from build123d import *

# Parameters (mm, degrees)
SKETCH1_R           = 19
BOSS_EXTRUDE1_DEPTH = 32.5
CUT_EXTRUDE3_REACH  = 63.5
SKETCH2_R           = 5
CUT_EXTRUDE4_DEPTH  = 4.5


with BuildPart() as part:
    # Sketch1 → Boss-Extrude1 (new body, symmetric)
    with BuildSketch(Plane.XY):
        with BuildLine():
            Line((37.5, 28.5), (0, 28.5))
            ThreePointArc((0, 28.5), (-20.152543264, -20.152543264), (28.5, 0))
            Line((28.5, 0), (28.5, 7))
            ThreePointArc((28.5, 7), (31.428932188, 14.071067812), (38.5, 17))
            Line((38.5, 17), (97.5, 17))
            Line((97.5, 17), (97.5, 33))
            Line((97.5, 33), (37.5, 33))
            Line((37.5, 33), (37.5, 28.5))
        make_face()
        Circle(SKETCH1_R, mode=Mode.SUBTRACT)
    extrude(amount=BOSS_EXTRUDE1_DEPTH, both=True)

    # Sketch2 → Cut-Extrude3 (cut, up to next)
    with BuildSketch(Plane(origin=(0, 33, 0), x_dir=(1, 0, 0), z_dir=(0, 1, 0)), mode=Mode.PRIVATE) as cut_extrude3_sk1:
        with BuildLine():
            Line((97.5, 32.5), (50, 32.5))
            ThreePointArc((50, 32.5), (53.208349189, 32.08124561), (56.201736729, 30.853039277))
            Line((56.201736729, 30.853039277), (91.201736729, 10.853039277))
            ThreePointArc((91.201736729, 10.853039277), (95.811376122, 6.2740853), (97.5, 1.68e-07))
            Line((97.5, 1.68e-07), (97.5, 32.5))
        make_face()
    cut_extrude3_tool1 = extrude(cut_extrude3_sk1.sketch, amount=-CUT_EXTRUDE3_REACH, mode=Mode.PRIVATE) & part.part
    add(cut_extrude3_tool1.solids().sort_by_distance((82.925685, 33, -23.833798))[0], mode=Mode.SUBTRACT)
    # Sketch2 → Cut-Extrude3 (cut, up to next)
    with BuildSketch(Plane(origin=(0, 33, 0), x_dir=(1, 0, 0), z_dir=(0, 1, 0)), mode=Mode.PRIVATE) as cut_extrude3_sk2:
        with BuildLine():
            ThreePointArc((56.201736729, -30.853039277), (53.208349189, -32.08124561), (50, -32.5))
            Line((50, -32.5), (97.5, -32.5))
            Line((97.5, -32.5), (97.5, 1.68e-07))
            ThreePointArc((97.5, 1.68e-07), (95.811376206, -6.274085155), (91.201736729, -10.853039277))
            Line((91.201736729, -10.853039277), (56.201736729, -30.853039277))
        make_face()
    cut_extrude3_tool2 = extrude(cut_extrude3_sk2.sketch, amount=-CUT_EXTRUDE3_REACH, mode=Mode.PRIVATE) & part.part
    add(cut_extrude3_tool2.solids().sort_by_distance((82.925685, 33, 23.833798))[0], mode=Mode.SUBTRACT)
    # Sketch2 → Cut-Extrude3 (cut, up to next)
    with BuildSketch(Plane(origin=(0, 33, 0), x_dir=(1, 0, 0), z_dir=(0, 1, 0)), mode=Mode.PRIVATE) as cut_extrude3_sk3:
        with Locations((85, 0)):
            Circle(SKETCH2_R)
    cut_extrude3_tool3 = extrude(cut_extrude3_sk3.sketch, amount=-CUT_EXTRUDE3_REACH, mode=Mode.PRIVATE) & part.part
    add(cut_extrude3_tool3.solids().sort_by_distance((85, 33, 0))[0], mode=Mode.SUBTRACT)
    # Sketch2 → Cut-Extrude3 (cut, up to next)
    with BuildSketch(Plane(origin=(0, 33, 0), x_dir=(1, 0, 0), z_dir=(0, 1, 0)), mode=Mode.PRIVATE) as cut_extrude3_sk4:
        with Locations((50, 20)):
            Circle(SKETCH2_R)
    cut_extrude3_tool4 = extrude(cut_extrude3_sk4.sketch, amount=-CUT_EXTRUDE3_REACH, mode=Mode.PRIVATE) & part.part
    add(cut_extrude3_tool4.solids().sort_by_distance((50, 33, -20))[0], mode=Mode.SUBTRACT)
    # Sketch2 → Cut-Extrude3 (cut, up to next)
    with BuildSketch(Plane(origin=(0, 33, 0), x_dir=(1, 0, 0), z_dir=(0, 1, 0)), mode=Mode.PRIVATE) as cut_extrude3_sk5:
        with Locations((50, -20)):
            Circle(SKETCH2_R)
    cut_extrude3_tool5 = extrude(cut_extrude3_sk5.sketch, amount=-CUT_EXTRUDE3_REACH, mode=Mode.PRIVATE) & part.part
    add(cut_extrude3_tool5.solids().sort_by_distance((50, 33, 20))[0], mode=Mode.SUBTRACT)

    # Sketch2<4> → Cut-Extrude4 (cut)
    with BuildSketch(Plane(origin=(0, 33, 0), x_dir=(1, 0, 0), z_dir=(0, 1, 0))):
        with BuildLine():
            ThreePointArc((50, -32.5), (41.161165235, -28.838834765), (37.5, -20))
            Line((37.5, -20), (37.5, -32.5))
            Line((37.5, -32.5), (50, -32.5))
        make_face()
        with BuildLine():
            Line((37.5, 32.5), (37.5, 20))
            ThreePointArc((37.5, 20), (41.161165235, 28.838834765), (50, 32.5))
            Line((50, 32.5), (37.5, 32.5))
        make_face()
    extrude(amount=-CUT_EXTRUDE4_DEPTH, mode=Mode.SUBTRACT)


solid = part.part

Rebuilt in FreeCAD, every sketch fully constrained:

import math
import FreeCAD as App
import Part
import Sketcher
from FreeCAD import Vector

doc = App.newDocument("Part")
body = doc.addObject("PartDesign::Body", "Body")

sketch1 = body.newObject("Sketcher::SketchObject", "Sketch")
sketch1.AttachmentSupport = (doc.getObject("XY_Plane"), [""])
sketch1.MapMode = "FlatFace"
sketch1.addGeometry([
    Part.LineSegment(Vector(37.5, 28.5, 0), Vector(0, 28.5, 0)),
    Part.ArcOfCircle(Part.Circle(Vector(0, 0, 0), Vector(0, 0, 1), 28.5), math.radians(90), math.radians(360)),
    Part.LineSegment(Vector(28.5, 0, 0), Vector(28.5, 7, 0)),
    Part.ArcOfCircle(Part.Circle(Vector(38.5, 7, 0), Vector(0, 0, 1), 10), math.radians(90), math.radians(180)),
    Part.LineSegment(Vector(38.5, 17, 0), Vector(97.5, 17, 0)),
    Part.LineSegment(Vector(97.5, 17, 0), Vector(97.5, 33, 0)),
    Part.LineSegment(Vector(97.5, 33, 0), Vector(37.5, 33, 0)),
    Part.LineSegment(Vector(37.5, 33, 0), Vector(37.5, 28.5, 0)),
    Part.Circle(Vector(0, 0, 0), Vector(0, 0, 1), 19),
], False)
sketch1.addConstraint([
    Sketcher.Constraint("Tangent", 0, 2, 1, 1),
    Sketcher.Constraint("Tangent", 1, 2, 2, 1),
    Sketcher.Constraint("Tangent", 2, 2, 3, 2),
    Sketcher.Constraint("Tangent", 3, 1, 4, 1),
    Sketcher.Constraint("Coincident", 4, 2, 5, 1),
    Sketcher.Constraint("Coincident", 5, 2, 6, 1),
    Sketcher.Constraint("Coincident", 6, 2, 7, 1),
    Sketcher.Constraint("Coincident", 7, 2, 0, 1),
    Sketcher.Constraint("Horizontal", 0),
    Sketcher.Constraint("Vertical", 2),
    Sketcher.Constraint("Horizontal", 4),
    Sketcher.Constraint("Vertical", 5),
    Sketcher.Constraint("Horizontal", 6),
    Sketcher.Constraint("Vertical", 7),
    Sketcher.Constraint("Coincident", 1, 3, -1, 1),
    Sketcher.Constraint("Coincident", 8, 3, -1, 1),
    Sketcher.Constraint("Diameter", 8, 38.0),
    Sketcher.Constraint("Radius", 3, 10.0),
    Sketcher.Constraint("Radius", 1, 28.5),
    Sketcher.Constraint("DistanceX", 4, 1, 4, 2, 59.0),
    Sketcher.Constraint("DistanceX", 6, 2, 6, 1, 60.0),
    Sketcher.Constraint("DistanceY", 2, 1, 2, 2, 7.0),
    Sketcher.Constraint("DistanceY", 5, 1, 5, 2, 16.0),
])
pad1 = body.newObject("PartDesign::Pad", "Pad")
pad1.Profile = sketch1
pad1.Length = 65
pad1.Midplane = True

sketch2 = body.newObject("Sketcher::SketchObject", "Sketch001")
sketch2.AttachmentSupport = (doc.getObject("XZ_Plane"), [""])
sketch2.MapMode = "FlatFace"
sketch2.AttachmentOffset = App.Placement(Vector(0, 0, -33), App.Rotation())
sketch2.addGeometry([
    Part.LineSegment(Vector(98, -32, 0), Vector(50, -32, 0)),
    Part.ArcOfCircle(Part.Circle(Vector(50, -20, 0), Vector(0, 0, 1), 12), math.radians(-90), math.radians(-60)),
    Part.LineSegment(Vector(56, -31, 0), Vector(91, -11, 0)),
    Part.ArcOfCircle(Part.Circle(Vector(85, 0, 0), Vector(0, 0, 1), 12), math.radians(-60), math.radians(0)),
    Part.LineSegment(Vector(98, 0, 0), Vector(98, -32, 0)),
], False)
sketch2.addConstraint([
    Sketcher.Constraint("Tangent", 0, 2, 1, 1),
    Sketcher.Constraint("Tangent", 1, 2, 2, 1),
    Sketcher.Constraint("Tangent", 2, 2, 3, 1),
    Sketcher.Constraint("Tangent", 3, 2, 4, 1),
    Sketcher.Constraint("Coincident", 4, 2, 0, 1),
    Sketcher.Constraint("Horizontal", 0),
    Sketcher.Constraint("Vertical", 4),
    Sketcher.Constraint("Equal", 1, 3),
    Sketcher.Constraint("PointOnObject", 3, 3, -1),
    Sketcher.Constraint("Radius", 1, 12.5),
    Sketcher.Constraint("DistanceX", 0, 2, 0, 1, 47.5),
    Sketcher.Constraint("DistanceY", 4, 2, 4, 1, 32.5),
    Sketcher.Constraint("DistanceX", -1, 1, 1, 3, 50.0),
])
pocket1 = body.newObject("PartDesign::Pocket", "Pocket")
pocket1.Profile = sketch2
pocket1.Type = "UpToFirst"
pocket1.Reversed = True

sketch3 = body.newObject("Sketcher::SketchObject", "Sketch002")
sketch3.AttachmentSupport = (doc.getObject("XZ_Plane"), [""])
sketch3.MapMode = "FlatFace"
sketch3.AttachmentOffset = App.Placement(Vector(0, 0, -33), App.Rotation())
sketch3.addGeometry([
    Part.ArcOfCircle(Part.Circle(Vector(50, 20, 0), Vector(0, 0, 1), 12), math.radians(60), math.radians(90)),
    Part.LineSegment(Vector(50, 32, 0), Vector(98, 32, 0)),
    Part.LineSegment(Vector(98, 32, 0), Vector(98, 0, 0)),
    Part.ArcOfCircle(Part.Circle(Vector(85, 0, 0), Vector(0, 0, 1), 13), math.radians(0), math.radians(60)),
    Part.LineSegment(Vector(91, 11, 0), Vector(56, 31, 0)),
], False)
sketch3.addConstraint([
    Sketcher.Constraint("Tangent", 0, 2, 1, 1),
    Sketcher.Constraint("Coincident", 1, 2, 2, 1),
    Sketcher.Constraint("Tangent", 2, 2, 3, 1),
    Sketcher.Constraint("Tangent", 3, 2, 4, 1),
    Sketcher.Constraint("Tangent", 4, 2, 0, 1),
    Sketcher.Constraint("Horizontal", 1),
    Sketcher.Constraint("Vertical", 2),
    Sketcher.Constraint("Equal", 0, 3),
    Sketcher.Constraint("PointOnObject", 3, 3, -1),
    Sketcher.Constraint("Radius", 0, 12.5),
    Sketcher.Constraint("DistanceX", 1, 1, 1, 2, 47.5),
    Sketcher.Constraint("DistanceY", 2, 2, 2, 1, 32.5),
    Sketcher.Constraint("DistanceX", -1, 1, 0, 3, 50.0),
])
pocket2 = body.newObject("PartDesign::Pocket", "Pocket001")
pocket2.Profile = sketch3
pocket2.Type = "UpToFirst"
pocket2.Reversed = True

sketch4 = body.newObject("Sketcher::SketchObject", "Sketch003")
sketch4.AttachmentSupport = (doc.getObject("XZ_Plane"), [""])
sketch4.MapMode = "FlatFace"
sketch4.AttachmentOffset = App.Placement(Vector(0, 0, -33), App.Rotation())
sketch4.addGeometry(Part.Circle(Vector(85, 0, 0), Vector(0, 0, 1), 5), False)
sketch4.addConstraint([
    Sketcher.Constraint("PointOnObject", 0, 3, -1),
    Sketcher.Constraint("Diameter", 0, 10.0),
    Sketcher.Constraint("DistanceX", -1, 1, 0, 3, 85.0),
])
pocket3 = body.newObject("PartDesign::Pocket", "Pocket002")
pocket3.Profile = sketch4
pocket3.Type = "UpToFirst"
pocket3.Reversed = True

sketch5 = body.newObject("Sketcher::SketchObject", "Sketch004")
sketch5.AttachmentSupport = (doc.getObject("XZ_Plane"), [""])
sketch5.MapMode = "FlatFace"
sketch5.AttachmentOffset = App.Placement(Vector(0, 0, -33), App.Rotation())
sketch5.addGeometry(Part.Circle(Vector(50, -20, 0), Vector(0, 0, 1), 5), False)
sketch5.addConstraint([
    Sketcher.Constraint("Diameter", 0, 10.0),
    Sketcher.Constraint("DistanceX", -1, 1, 0, 3, 50.0),
    Sketcher.Constraint("DistanceY", 0, 3, -1, 1, 20.0),
])
pocket4 = body.newObject("PartDesign::Pocket", "Pocket003")
pocket4.Profile = sketch5
pocket4.Type = "UpToFirst"
pocket4.Reversed = True

sketch6 = body.newObject("Sketcher::SketchObject", "Sketch005")
sketch6.AttachmentSupport = (doc.getObject("XZ_Plane"), [""])
sketch6.MapMode = "FlatFace"
sketch6.AttachmentOffset = App.Placement(Vector(0, 0, -33), App.Rotation())
sketch6.addGeometry(Part.Circle(Vector(50, 20, 0), Vector(0, 0, 1), 5), False)
sketch6.addConstraint([
    Sketcher.Constraint("Diameter", 0, 10.0),
    Sketcher.Constraint("DistanceX", -1, 1, 0, 3, 50.0),
    Sketcher.Constraint("DistanceY", -1, 1, 0, 3, 20.0),
])
pocket5 = body.newObject("PartDesign::Pocket", "Pocket004")
pocket5.Profile = sketch6
pocket5.Type = "UpToFirst"
pocket5.Reversed = True

sketch7 = body.newObject("Sketcher::SketchObject", "Sketch006")
sketch7.AttachmentSupport = (doc.getObject("XZ_Plane"), [""])
sketch7.MapMode = "FlatFace"
sketch7.AttachmentOffset = App.Placement(Vector(0, 0, -33), App.Rotation())
sketch7.addGeometry([
    Part.ArcOfCircle(Part.Circle(Vector(50, 20, 0), Vector(0, 0, 1), 12), math.radians(90), math.radians(180)),
    Part.LineSegment(Vector(38, 20, 0), Vector(38, 32, 0)),
    Part.LineSegment(Vector(38, 32, 0), Vector(50, 32, 0)),
    Part.LineSegment(Vector(38, -32, 0), Vector(38, -20, 0)),
    Part.ArcOfCircle(Part.Circle(Vector(50, -20, 0), Vector(0, 0, 1), 12), math.radians(180), math.radians(270)),
    Part.LineSegment(Vector(50, -32, 0), Vector(38, -32, 0)),
], False)
sketch7.addConstraint([
    Sketcher.Constraint("Tangent", 0, 2, 1, 1),
    Sketcher.Constraint("Coincident", 1, 2, 2, 1),
    Sketcher.Constraint("Tangent", 2, 2, 0, 1),
    Sketcher.Constraint("Tangent", 3, 2, 4, 1),
    Sketcher.Constraint("Tangent", 4, 2, 5, 1),
    Sketcher.Constraint("Coincident", 5, 2, 3, 1),
    Sketcher.Constraint("Vertical", 1),
    Sketcher.Constraint("Horizontal", 2),
    Sketcher.Constraint("Vertical", 3),
    Sketcher.Constraint("Horizontal", 5),
    Sketcher.Constraint("Equal", 0, 4),
    Sketcher.Constraint("Symmetric", 0, 3, 4, 3, -1),
    Sketcher.Constraint("Radius", 0, 12.5),
    Sketcher.Constraint("DistanceX", -1, 1, 0, 3, 50.0),
    Sketcher.Constraint("DistanceY", -1, 1, 0, 3, 20.0),
])
pocket6 = body.newObject("PartDesign::Pocket", "Pocket005")
pocket6.Profile = sketch7
pocket6.Length = 4.5
pocket6.Reversed = True

doc.recompute()
